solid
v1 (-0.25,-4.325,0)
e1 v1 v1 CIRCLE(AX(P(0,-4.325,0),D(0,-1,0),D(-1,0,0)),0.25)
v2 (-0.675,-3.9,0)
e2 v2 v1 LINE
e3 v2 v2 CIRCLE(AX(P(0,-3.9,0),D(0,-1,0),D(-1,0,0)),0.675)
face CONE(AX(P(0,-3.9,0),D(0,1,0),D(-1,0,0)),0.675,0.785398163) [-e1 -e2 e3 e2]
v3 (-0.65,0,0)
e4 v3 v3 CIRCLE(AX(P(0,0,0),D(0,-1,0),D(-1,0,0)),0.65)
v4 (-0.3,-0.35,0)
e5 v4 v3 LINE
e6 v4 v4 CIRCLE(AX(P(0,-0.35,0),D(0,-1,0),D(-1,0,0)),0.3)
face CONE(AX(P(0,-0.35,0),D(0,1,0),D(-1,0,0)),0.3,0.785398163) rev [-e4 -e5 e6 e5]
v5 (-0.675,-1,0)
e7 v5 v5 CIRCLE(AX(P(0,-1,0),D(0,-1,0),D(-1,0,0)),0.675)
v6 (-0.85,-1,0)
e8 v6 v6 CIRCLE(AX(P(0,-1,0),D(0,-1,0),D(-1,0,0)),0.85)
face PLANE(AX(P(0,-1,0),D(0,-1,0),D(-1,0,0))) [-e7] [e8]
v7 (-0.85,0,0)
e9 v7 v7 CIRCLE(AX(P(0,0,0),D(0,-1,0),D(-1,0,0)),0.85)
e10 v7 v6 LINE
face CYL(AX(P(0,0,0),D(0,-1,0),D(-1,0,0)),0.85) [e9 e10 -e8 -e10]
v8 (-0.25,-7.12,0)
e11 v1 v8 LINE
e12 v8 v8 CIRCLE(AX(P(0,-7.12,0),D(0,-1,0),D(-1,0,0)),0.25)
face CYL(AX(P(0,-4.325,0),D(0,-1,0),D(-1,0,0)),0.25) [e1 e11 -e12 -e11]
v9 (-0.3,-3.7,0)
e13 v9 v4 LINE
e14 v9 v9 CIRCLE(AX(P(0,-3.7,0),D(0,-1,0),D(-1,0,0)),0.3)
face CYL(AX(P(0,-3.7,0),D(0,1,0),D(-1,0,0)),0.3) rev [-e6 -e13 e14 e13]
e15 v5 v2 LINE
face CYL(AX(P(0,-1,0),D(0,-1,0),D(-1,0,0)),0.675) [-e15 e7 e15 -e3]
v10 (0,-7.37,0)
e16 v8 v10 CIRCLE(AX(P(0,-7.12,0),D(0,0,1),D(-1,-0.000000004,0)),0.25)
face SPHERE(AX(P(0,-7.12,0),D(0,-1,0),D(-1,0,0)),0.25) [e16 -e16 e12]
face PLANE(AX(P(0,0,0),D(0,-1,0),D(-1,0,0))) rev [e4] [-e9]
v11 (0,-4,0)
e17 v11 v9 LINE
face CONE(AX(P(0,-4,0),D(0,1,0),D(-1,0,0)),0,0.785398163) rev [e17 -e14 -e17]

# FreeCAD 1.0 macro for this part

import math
import FreeCAD as App
import Part
import Sketcher

V = App.Vector
Q = App.Units.Quantity

doc = App.newDocument("Part")
body = doc.addObject("PartDesign::Body", "Body")

sketch1 = body.newObject("Sketcher::SketchObject", "Sketch")
sketch1.AttachmentSupport = (doc.getObject("XY_Plane"), [""])
sketch1.MapMode = "FlatFace"
sketch1.addGeometry(Part.LineSegment(V(-0.85, 0, 0), V(-0.85, -1, 0)), False)
sketch1.addGeometry(Part.LineSegment(V(-0.85, -1, 0), V(-0.675, -1, 0)), False)
sketch1.addGeometry(Part.LineSegment(V(-0.675, -1, 0), V(-0.675, -3.9, 0)), False)
sketch1.addGeometry(Part.LineSegment(V(-0.675, -3.9, 0), V(-0.25, -4.325, 0)), False)
sketch1.addGeometry(Part.LineSegment(V(-0.25, -4.325, 0), V(-0.25, -7.12, 0)), False)
sketch1.addGeometry(Part.ArcOfCircle(Part.Circle(V(0, -7.12, 0), V(0, 0, 1), 0.25), math.radians(-180), math.radians(-90)), False)
sketch1.addGeometry(Part.LineSegment(V(0, -7.37, 0), V(0, -4, 0)), False)
sketch1.addGeometry(Part.LineSegment(V(0, -4, 0), V(-0.3, -3.7, 0)), False)
sketch1.addGeometry(Part.LineSegment(V(-0.3, -3.7, 0), V(-0.3, -0.35, 0)), False)
sketch1.addGeometry(Part.LineSegment(V(-0.3, -0.35, 0), V(-0.65, 0, 0)), False)
sketch1.addGeometry(Part.LineSegment(V(-0.65, 0, 0), V(-0.85, 0, 0)), False)
sketch1.addConstraint(Sketcher.Constraint("Coincident", 0, 2, 1, 1))
sketch1.addConstraint(Sketcher.Constraint("Coincident", 1, 2, 2, 1))
sketch1.addConstraint(Sketcher.Constraint("Coincident", 2, 2, 3, 1))
sketch1.addConstraint(Sketcher.Constraint("Coincident", 3, 2, 4, 1))
sketch1.addConstraint(Sketcher.Constraint("Tangent", 4, 2, 5, 1))
sketch1.addConstraint(Sketcher.Constraint("Coincident", 5, 2, 6, 1))
sketch1.addConstraint(Sketcher.Constraint("Coincident", 6, 2, 7, 1))
sketch1.addConstraint(Sketcher.Constraint("Coincident", 7, 2, 8, 1))
sketch1.addConstraint(Sketcher.Constraint("Coincident", 8, 2, 9, 1))
sketch1.addConstraint(Sketcher.Constraint("Coincident", 9, 2, 10, 1))
sketch1.addConstraint(Sketcher.Constraint("Coincident", 10, 2, 0, 1))
sketch1.addConstraint(Sketcher.Constraint("Vertical", 0))
sketch1.addConstraint(Sketcher.Constraint("Horizontal", 1))
sketch1.addConstraint(Sketcher.Constraint("Vertical", 2))
sketch1.addConstraint(Sketcher.Constraint("Vertical", 4))
sketch1.addConstraint(Sketcher.Constraint("Vertical", 6))
sketch1.addConstraint(Sketcher.Constraint("Vertical", 8))
sketch1.addConstraint(Sketcher.Constraint("Horizontal", 10))
sketch1.addConstraint(Sketcher.Constraint("PointOnObject", 5, 3, -2))
sketch1.addConstraint(Sketcher.Constraint("PointOnObject", 5, 2, -2))
sketch1.addConstraint(Sketcher.Constraint("PointOnObject", 9, 2, -1))
sketch1.addConstraint(Sketcher.Constraint("Parallel", 3, 7))
sketch1.addConstraint(Sketcher.Constraint("Parallel", 7, 9))
sketch1.addConstraint(Sketcher.Constraint("DistanceY", 0, 2, 0, 1, Q("1 mm")))
sketch1.addConstraint(Sketcher.Constraint("Angle", 3, Q("-45 deg")))
sketch1.addConstraint(Sketcher.Constraint("Radius", 5, Q("0.25 mm")))
sketch1.addConstraint(Sketcher.Constraint("DistanceX", 10, 2, 10, 1, Q("0.2 mm")))
sketch1.addConstraint(Sketcher.Constraint("DistanceY", 2, 2, 2, 1, Q("2.9 mm")))
sketch1.addConstraint(Sketcher.Constraint("DistanceY", 6, 2, -1, 1, Q("4 mm")))
sketch1.addConstraint(Sketcher.Constraint("DistanceY", 6, 1, 6, 2, Q("3.37 mm")))
sketch1.addConstraint(Sketcher.Constraint("DistanceY", 8, 1, 8, 2, Q("3.35 mm")))
sketch1.addConstraint(Sketcher.Constraint("DistanceX", 7, 2, -1, 1, Q("0.3 mm")))
sketch1.addConstraint(Sketcher.Constraint("DistanceX", 1, 1, 1, 2, Q("0.175 mm")))
revolution = body.newObject("PartDesign::Revolution", "Revolution")
revolution.Profile = sketch1
revolution.ReferenceAxis = (sketch1, ["V_Axis"])
revolution.Angle = 360

doc.recompute()
